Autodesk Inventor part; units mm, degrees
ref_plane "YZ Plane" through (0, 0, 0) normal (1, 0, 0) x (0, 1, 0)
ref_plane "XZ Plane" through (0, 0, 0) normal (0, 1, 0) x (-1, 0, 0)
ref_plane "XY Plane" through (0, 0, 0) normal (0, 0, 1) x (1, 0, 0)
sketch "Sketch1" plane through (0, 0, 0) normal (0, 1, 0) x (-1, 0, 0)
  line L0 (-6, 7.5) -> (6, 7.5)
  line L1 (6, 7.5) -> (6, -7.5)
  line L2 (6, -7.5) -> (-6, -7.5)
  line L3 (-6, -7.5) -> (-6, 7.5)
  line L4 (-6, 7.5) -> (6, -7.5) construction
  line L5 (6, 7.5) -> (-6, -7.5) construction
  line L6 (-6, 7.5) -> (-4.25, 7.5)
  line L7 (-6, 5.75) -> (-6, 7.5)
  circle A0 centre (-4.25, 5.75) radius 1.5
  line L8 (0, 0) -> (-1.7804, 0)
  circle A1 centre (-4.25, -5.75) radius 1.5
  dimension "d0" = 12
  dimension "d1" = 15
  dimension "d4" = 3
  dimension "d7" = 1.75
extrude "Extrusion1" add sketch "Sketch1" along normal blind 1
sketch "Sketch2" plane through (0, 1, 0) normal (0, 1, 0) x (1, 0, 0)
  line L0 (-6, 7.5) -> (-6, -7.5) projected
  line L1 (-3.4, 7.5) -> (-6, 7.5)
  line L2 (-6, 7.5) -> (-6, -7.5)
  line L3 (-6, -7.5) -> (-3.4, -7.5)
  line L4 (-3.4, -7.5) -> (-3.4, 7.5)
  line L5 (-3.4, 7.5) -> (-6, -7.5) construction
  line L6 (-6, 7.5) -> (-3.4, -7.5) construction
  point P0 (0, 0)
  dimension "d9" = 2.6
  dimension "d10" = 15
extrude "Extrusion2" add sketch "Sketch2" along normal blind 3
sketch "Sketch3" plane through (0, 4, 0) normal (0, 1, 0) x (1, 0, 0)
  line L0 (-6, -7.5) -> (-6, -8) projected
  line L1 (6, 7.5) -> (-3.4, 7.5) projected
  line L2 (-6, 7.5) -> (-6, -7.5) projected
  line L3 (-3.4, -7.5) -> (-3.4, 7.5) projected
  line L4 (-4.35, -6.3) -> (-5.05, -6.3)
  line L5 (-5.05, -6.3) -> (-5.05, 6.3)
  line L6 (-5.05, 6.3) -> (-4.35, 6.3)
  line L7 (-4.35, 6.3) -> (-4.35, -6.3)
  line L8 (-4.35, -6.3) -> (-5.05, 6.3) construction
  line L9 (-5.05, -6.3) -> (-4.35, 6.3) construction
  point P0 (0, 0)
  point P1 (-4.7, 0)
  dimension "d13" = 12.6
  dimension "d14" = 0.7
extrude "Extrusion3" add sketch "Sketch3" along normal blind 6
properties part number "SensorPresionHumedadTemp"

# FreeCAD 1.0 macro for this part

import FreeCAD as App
import Part
import Sketcher

V = App.Vector
Q = App.Units.Quantity

doc = App.newDocument("Part")
body = doc.addObject("PartDesign::Body", "Body")

sketch1 = body.newObject("Sketcher::SketchObject", "Sketch")
sketch1.AttachmentSupport = (doc.getObject("XZ_Plane"), [""])
sketch1.MapMode = "FlatFace"
sketch1.addGeometry([
    Part.LineSegment(V(-6, 7.5, 0), V(6, 7.5, 0)),
    Part.LineSegment(V(6, 7.5, 0), V(6, -7.5, 0)),
    Part.LineSegment(V(6, -7.5, 0), V(-6, -7.5, 0)),
    Part.LineSegment(V(-6, -7.5, 0), V(-6, 7.5, 0)),
    Part.Circle(V(4.2, -5.8, 0), V(0, 0, 1), 1.5),
    Part.Circle(V(4.2, 5.8, 0), V(0, 0, 1), 1.5),
], False)
sketch1.addConstraint([
    Sketcher.Constraint("Coincident", 0, 2, 1, 1),
    Sketcher.Constraint("Coincident", 1, 2, 2, 1),
    Sketcher.Constraint("Coincident", 2, 2, 3, 1),
    Sketcher.Constraint("Coincident", 3, 2, 0, 1),
    Sketcher.Constraint("Horizontal", 0),
    Sketcher.Constraint("Vertical", 1),
    Sketcher.Constraint("Horizontal", 2),
    Sketcher.Constraint("Vertical", 3),
    Sketcher.Constraint("Equal", 4, 5),
    Sketcher.Constraint("Symmetric", 0, 2, 2, 2, -1, 1),
    Sketcher.Constraint("Symmetric", 4, 3, 5, 3, -1),
    Sketcher.Constraint("Diameter", 4, Q("3 mm")),
    Sketcher.Constraint("DistanceX", 0, 1, 0, 2, Q("12 mm")),
    Sketcher.Constraint("DistanceY", 1, 2, 1, 1, Q("15 mm")),
    Sketcher.Constraint("DistanceX", 5, 3, 0, 2, Q("1.75 mm")),
    Sketcher.Constraint("DistanceY", 5, 3, 0, 2, Q("1.75 mm")),
])
pad1 = body.newObject("PartDesign::Pad", "Pad")
pad1.Profile = sketch1
pad1.Length = 1
pad1.Reversed = True

sketch2 = body.newObject("Sketcher::SketchObject", "Sketch001")
sketch2.AttachmentSupport = (doc.getObject("XZ_Plane"), [""])
sketch2.MapMode = "FlatFace"
sketch2.AttachmentOffset = App.Placement(V(0, 0, -1), App.Rotation())
sketch2.addGeometry([
    Part.LineSegment(V(-3.4, -7.5, 0), V(-6, -7.5, 0)),
    Part.LineSegment(V(-6, -7.5, 0), V(-6, 7.5, 0)),
    Part.LineSegment(V(-6, 7.5, 0), V(-3.4, 7.5, 0)),
    Part.LineSegment(V(-3.4, 7.5, 0), V(-3.4, -7.5, 0)),
], False)
sketch2.addConstraint([
    Sketcher.Constraint("Coincident", 0, 2, 1, 1),
    Sketcher.Constraint("Coincident", 1, 2, 2, 1),
    Sketcher.Constraint("Coincident", 2, 2, 3, 1),
    Sketcher.Constraint("Coincident", 3, 2, 0, 1),
    Sketcher.Constraint("Horizontal", 0),
    Sketcher.Constraint("Vertical", 1),
    Sketcher.Constraint("Horizontal", 2),
    Sketcher.Constraint("Vertical", 3),
    Sketcher.Constraint("DistanceY", 1, 1, 1, 2, Q("15 mm")),
    Sketcher.Constraint("DistanceX", 0, 2, 0, 1, Q("2.6 mm")),
    Sketcher.Constraint("DistanceX", 0, 2, -1, 1, Q("6 mm")),
    Sketcher.Constraint("DistanceY", 0, 2, -1, 1, Q("7.5 mm")),
])
pad2 = body.newObject("PartDesign::Pad", "Pad001")
pad2.Profile = sketch2
pad2.Length = 3
pad2.Reversed = True

sketch3 = body.newObject("Sketcher::SketchObject", "Sketch002")
sketch3.AttachmentSupport = (doc.getObject("XZ_Plane"), [""])
sketch3.MapMode = "FlatFace"
sketch3.AttachmentOffset = App.Placement(V(0, 0, -4), App.Rotation())
sketch3.addGeometry([
    Part.LineSegment(V(-5, 6.3, 0), V(-4.3, 6.3, 0)),
    Part.LineSegment(V(-4.3, 6.3, 0), V(-4.3, -6.3, 0)),
    Part.LineSegment(V(-4.3, -6.3, 0), V(-5, -6.3, 0)),
    Part.LineSegment(V(-5, -6.3, 0), V(-5, 6.3, 0)),
], False)
sketch3.addConstraint([
    Sketcher.Constraint("Coincident", 0, 2, 1, 1),
    Sketcher.Constraint("Coincident", 1, 2, 2, 1),
    Sketcher.Constraint("Coincident", 2, 2, 3, 1),
    Sketcher.Constraint("Coincident", 3, 2, 0, 1),
    Sketcher.Constraint("Horizontal", 0),
    Sketcher.Constraint("Vertical", 1),
    Sketcher.Constraint("Horizontal", 2),
    Sketcher.Constraint("Vertical", 3),
    Sketcher.Constraint("DistanceX", 0, 1, 0, 2, Q("0.7 mm")),
    Sketcher.Constraint("DistanceY", 1, 2, 1, 1, Q("12.6 mm")),
    Sketcher.Constraint("DistanceY", -1, 1, 0, 2, Q("6.3 mm")),
    Sketcher.Constraint("DistanceX", 0, 2, -1, 1, Q("4.35 mm")),
])
pad3 = body.newObject("PartDesign::Pad", "Pad002")
pad3.Profile = sketch3
pad3.Length = 6
pad3.Reversed = True

doc.recompute()
